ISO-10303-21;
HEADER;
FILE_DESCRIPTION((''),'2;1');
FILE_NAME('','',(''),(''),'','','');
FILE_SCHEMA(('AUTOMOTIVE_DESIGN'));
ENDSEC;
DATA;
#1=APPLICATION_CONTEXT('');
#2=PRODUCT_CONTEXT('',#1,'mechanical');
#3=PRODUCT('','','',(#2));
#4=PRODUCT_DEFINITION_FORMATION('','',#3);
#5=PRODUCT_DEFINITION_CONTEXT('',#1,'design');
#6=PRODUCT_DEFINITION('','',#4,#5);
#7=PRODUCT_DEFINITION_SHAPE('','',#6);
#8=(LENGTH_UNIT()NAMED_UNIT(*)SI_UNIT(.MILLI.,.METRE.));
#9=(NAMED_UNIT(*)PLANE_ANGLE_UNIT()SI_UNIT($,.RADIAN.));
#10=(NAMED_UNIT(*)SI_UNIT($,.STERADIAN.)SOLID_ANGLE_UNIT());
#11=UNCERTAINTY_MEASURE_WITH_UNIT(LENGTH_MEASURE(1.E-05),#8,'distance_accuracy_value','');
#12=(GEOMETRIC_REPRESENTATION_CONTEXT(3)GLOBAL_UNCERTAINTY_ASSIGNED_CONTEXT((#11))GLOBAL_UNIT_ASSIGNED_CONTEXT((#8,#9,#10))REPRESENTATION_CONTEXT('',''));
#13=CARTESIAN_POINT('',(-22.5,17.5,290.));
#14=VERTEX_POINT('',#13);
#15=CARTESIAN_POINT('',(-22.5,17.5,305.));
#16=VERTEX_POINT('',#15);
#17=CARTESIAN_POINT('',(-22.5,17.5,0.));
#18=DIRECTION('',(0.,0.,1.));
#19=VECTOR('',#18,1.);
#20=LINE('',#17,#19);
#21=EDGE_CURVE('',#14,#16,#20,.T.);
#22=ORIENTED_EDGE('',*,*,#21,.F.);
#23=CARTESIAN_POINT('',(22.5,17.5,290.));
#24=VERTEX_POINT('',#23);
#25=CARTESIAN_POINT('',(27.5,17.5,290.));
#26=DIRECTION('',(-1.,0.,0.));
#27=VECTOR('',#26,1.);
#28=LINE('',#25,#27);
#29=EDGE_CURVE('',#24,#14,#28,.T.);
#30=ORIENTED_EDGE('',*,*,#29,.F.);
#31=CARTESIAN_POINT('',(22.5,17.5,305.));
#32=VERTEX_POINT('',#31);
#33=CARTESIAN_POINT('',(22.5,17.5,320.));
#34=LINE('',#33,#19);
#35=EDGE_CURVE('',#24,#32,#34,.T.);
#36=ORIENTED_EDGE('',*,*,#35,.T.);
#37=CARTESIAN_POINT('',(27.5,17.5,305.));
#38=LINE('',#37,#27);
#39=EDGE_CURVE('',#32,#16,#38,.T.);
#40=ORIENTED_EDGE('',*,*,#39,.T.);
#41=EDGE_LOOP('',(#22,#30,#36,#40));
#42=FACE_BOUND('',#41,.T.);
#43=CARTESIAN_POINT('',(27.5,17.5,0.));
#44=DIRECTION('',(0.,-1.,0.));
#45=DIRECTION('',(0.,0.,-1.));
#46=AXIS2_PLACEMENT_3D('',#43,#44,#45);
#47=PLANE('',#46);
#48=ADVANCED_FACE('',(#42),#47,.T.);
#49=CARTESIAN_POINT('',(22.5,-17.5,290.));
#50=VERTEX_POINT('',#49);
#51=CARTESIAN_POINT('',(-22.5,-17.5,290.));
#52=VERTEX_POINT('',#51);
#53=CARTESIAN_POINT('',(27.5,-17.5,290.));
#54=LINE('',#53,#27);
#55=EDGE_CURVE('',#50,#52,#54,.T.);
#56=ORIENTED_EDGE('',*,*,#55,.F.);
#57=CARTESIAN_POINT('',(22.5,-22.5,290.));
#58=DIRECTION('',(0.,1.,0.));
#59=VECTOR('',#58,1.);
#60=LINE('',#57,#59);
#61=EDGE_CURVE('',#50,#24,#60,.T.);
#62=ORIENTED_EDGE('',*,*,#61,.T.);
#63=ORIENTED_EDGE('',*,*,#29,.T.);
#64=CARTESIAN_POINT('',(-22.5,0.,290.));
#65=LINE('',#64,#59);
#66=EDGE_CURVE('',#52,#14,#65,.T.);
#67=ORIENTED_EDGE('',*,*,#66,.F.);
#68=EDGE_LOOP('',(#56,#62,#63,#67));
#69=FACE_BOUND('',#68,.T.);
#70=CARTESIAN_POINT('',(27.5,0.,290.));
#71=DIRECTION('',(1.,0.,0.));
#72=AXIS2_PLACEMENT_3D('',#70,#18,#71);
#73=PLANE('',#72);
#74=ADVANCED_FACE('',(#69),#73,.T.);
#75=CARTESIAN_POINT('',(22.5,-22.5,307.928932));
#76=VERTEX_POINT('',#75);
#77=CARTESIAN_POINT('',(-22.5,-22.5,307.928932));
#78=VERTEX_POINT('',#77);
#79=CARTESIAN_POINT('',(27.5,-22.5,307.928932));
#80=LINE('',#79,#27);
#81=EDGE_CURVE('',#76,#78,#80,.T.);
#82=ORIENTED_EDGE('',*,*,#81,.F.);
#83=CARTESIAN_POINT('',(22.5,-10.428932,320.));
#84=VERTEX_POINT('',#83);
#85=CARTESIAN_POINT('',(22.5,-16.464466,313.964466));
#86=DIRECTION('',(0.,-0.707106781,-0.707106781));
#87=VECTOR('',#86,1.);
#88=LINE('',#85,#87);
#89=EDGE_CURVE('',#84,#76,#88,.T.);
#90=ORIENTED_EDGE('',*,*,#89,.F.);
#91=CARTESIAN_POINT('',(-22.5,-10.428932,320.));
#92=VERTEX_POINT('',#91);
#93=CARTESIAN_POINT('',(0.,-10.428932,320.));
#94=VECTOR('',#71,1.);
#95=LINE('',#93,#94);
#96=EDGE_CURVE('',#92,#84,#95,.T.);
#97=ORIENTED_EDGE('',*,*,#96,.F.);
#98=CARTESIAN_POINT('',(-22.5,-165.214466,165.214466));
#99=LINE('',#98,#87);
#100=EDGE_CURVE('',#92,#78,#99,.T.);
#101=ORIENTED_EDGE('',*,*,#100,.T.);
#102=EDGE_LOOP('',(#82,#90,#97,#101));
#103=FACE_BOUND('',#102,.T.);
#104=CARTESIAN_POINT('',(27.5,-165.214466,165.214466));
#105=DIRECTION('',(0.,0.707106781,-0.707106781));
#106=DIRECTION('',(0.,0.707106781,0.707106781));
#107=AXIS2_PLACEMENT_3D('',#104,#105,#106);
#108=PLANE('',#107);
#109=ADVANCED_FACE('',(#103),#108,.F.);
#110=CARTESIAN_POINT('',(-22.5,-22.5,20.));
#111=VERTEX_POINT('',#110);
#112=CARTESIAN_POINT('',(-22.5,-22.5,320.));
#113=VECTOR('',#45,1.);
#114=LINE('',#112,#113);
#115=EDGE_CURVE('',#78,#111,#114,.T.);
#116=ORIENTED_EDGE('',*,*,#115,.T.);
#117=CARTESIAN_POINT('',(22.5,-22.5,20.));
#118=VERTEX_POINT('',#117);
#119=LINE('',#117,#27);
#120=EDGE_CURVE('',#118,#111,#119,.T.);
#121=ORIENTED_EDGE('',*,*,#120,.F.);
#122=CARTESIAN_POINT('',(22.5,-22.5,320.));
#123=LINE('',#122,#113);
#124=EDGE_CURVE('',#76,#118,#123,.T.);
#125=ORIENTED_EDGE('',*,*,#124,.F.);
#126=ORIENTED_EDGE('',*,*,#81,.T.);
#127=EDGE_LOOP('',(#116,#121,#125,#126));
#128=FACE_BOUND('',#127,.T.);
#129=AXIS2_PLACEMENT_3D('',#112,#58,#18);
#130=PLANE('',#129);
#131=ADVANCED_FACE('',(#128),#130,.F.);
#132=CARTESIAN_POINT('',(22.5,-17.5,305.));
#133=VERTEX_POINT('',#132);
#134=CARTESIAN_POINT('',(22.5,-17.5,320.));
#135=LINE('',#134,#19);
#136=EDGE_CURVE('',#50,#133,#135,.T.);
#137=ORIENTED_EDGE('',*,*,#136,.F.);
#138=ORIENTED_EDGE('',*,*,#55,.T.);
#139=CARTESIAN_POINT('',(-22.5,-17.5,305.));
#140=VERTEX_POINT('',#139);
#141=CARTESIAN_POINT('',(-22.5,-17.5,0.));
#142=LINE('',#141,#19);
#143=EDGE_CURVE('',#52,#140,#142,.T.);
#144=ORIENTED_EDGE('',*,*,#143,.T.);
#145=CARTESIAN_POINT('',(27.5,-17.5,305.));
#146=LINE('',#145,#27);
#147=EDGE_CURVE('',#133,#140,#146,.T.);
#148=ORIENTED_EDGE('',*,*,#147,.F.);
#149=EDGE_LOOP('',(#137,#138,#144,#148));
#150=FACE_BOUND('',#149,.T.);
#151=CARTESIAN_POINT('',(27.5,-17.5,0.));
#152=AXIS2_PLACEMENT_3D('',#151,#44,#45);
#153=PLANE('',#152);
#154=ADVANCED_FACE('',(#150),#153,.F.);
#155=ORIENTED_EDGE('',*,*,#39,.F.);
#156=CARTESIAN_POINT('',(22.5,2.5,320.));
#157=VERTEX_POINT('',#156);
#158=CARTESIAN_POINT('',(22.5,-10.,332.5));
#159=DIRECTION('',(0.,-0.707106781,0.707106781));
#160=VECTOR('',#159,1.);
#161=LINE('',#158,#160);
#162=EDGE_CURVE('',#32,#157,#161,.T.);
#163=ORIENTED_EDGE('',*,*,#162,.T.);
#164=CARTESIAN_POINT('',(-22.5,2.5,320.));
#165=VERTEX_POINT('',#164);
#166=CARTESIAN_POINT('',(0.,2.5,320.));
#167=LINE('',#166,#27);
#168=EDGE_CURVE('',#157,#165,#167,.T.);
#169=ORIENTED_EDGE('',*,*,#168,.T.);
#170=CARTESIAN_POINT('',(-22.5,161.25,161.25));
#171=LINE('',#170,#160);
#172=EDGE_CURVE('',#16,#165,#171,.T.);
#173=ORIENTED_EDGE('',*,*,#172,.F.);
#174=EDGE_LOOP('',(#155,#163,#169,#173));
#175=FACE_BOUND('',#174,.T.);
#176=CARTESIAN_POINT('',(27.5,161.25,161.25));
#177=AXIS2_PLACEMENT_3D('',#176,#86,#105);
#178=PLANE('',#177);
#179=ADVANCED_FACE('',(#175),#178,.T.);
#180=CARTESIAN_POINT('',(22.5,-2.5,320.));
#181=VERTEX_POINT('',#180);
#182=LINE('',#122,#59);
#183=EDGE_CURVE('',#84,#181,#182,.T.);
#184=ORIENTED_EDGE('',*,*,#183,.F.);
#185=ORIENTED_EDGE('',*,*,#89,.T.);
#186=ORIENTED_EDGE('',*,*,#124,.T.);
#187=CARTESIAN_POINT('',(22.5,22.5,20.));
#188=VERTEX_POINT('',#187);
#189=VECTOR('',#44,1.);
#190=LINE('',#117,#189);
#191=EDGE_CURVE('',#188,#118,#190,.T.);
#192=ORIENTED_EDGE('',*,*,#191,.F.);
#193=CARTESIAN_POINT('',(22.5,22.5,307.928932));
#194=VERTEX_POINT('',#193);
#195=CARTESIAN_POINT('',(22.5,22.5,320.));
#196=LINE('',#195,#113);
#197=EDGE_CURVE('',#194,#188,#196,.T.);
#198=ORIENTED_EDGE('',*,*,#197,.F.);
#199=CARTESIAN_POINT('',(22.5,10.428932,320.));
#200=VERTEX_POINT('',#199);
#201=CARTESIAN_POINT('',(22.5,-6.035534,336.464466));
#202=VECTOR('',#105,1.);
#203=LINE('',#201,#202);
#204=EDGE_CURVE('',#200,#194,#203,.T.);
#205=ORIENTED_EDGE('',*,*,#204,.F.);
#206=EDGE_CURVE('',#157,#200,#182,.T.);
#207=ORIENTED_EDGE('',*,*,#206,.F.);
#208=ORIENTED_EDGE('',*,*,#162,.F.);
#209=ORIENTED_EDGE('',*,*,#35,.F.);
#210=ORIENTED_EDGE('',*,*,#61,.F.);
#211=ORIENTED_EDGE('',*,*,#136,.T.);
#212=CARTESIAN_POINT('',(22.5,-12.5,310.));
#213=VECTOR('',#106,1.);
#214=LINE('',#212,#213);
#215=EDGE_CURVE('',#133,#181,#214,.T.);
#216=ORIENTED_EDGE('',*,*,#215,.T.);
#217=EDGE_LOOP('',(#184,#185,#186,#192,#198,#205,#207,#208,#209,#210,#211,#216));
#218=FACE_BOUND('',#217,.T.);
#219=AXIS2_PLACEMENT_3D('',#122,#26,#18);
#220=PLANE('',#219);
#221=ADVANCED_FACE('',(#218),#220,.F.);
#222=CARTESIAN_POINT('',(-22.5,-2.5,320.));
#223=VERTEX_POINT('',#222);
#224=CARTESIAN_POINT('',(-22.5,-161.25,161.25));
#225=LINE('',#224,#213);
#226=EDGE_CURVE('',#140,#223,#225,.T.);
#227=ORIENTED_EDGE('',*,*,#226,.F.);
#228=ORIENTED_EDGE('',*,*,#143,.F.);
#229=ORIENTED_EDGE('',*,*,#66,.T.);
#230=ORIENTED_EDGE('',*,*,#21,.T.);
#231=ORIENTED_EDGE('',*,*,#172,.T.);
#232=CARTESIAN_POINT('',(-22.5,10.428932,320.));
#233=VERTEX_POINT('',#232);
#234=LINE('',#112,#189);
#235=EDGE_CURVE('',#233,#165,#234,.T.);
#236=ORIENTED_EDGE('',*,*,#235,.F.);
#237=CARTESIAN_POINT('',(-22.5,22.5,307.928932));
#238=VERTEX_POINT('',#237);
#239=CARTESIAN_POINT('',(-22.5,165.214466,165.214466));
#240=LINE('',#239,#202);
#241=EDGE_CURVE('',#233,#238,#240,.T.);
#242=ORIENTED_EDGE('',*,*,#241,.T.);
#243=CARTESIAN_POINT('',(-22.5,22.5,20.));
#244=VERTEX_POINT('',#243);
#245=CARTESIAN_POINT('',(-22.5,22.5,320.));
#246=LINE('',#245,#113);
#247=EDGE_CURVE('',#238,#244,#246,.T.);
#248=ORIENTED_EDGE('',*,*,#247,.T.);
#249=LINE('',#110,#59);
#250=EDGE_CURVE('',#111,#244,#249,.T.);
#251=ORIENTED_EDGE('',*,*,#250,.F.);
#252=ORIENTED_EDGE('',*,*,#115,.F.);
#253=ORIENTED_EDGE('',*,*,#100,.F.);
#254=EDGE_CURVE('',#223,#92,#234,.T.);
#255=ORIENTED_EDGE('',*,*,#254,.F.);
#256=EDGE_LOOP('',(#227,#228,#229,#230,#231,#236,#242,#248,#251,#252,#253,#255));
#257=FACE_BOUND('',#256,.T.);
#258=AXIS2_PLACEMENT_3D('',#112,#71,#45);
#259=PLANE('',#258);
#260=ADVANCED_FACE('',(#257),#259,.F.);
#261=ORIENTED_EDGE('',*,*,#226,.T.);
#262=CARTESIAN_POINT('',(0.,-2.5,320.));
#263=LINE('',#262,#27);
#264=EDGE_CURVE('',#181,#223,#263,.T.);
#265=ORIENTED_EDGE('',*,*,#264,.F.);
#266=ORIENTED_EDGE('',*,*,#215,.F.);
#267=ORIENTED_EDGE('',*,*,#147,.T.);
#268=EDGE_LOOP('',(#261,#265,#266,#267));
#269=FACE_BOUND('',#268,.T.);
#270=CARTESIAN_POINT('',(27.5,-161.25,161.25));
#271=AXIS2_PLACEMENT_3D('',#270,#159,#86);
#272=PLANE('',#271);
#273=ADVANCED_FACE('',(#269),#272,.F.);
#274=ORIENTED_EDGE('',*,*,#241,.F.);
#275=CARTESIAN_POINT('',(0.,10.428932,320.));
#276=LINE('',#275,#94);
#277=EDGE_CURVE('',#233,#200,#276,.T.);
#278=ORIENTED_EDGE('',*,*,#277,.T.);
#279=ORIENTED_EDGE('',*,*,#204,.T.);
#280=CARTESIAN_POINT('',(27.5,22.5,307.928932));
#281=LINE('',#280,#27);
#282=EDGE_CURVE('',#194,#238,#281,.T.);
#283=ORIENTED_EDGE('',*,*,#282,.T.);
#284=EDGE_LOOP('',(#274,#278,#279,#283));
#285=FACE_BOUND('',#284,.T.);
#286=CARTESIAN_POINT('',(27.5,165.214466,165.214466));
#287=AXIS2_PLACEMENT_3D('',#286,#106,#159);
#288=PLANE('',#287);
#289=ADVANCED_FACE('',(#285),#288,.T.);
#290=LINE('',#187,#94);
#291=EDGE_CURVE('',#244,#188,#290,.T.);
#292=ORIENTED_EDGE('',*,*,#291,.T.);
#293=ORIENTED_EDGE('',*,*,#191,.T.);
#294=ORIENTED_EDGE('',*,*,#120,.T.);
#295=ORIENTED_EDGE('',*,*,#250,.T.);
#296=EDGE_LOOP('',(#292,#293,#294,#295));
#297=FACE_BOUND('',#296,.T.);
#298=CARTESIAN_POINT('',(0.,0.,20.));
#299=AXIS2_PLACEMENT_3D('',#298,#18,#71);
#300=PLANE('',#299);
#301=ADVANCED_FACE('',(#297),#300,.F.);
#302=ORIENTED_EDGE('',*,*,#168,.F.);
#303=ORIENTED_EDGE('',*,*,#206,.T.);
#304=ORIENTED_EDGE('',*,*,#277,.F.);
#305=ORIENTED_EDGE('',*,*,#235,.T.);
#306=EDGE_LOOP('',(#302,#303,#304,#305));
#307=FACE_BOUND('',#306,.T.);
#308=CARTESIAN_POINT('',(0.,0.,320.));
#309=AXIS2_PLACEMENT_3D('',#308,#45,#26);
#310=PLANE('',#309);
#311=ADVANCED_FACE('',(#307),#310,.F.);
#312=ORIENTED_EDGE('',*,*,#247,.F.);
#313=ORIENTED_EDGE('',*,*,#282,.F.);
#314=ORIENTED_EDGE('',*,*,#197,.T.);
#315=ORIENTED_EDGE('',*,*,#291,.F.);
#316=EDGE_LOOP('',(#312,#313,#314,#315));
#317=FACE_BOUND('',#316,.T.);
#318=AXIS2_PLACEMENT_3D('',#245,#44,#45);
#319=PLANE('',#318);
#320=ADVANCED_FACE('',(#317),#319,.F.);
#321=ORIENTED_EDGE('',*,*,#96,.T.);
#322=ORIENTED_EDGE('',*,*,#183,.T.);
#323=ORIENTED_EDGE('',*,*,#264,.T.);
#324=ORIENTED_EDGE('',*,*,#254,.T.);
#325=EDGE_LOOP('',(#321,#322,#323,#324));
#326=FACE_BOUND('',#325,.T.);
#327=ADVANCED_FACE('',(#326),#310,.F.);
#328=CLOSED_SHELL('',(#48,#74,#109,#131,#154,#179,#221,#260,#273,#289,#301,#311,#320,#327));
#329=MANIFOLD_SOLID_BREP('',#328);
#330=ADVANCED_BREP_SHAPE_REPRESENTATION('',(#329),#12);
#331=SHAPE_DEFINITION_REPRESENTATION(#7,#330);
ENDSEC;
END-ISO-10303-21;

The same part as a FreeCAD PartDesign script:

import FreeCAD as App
import Part
import Sketcher

V = App.Vector
Q = App.Units.Quantity


def add_polygon(sketch, points):
    """Adds a closed chain of lines whose ends are joined by coincident constraints."""
    first, n = sketch.GeometryCount, len(points)
    for a, b in zip(points, points[1:] + points[:1]):
        sketch.addGeometry(Part.LineSegment(App.Vector(*a, 0), App.Vector(*b, 0)), False)
    for i in range(n):
        sketch.addConstraint(Sketcher.Constraint("Coincident", first + i, 2, first + (i + 1) % n, 1))

doc = App.newDocument("Part")
body = doc.addObject("PartDesign::Body", "Body")

sketch1 = body.newObject("Sketcher::SketchObject", "Sketch")
sketch1.AttachmentSupport = (doc.getObject("XY_Plane"), [""])
sketch1.MapMode = "FlatFace"
add_polygon(sketch1, [(-22, 22), (-22, -22), (22, -22), (22, 22)])
sketch1.addConstraint(Sketcher.Constraint("Vertical", 0))
sketch1.addConstraint(Sketcher.Constraint("Horizontal", 1))
sketch1.addConstraint(Sketcher.Constraint("Vertical", 2))
sketch1.addConstraint(Sketcher.Constraint("Horizontal", 3))
sketch1.addConstraint(Sketcher.Constraint("Symmetric", 0, 2, 2, 2, -1, 1))
sketch1.addConstraint(Sketcher.Constraint("Equal", 3, 0))
sketch1.addConstraint(Sketcher.Constraint("DistanceX", 1, 1, 1, 2, Q("45 mm")))
pad1 = body.newObject("PartDesign::Pad", "Pad")
pad1.Profile = sketch1
pad1.Length = 320

sketch2 = body.newObject("Sketcher::SketchObject", "Sketch001")
sketch2.AttachmentSupport = (doc.getObject("YZ_Plane"), [""])
sketch2.MapMode = "FlatFace"
sketch2.AttachmentOffset = App.Placement(V(0, 0, -22.5), App.Rotation())
add_polygon(sketch2, [(18, 290), (-18, 290), (-18, 305), (-2, 320), (2, 320), (18, 305)])
add_polygon(sketch2, [(22, 320), (22, 308), (10, 320)])
add_polygon(sketch2, [(-10, 320), (-22, 308), (-22, 320)])
sketch2.addConstraint(Sketcher.Constraint("Horizontal", 0))
sketch2.addConstraint(Sketcher.Constraint("Vertical", 1))
sketch2.addConstraint(Sketcher.Constraint("Horizontal", 3))
sketch2.addConstraint(Sketcher.Constraint("Vertical", 5))
sketch2.addConstraint(Sketcher.Constraint("Vertical", 6))
sketch2.addConstraint(Sketcher.Constraint("Horizontal", 8))
sketch2.addConstraint(Sketcher.Constraint("Vertical", 10))
sketch2.addConstraint(Sketcher.Constraint("Horizontal", 11))
sketch2.addConstraint(Sketcher.Constraint("Symmetric", 1, 2, 4, 2, -2))
sketch2.addConstraint(Sketcher.Constraint("Symmetric", 6, 2, 9, 2, -2))
sketch2.addConstraint(Sketcher.Constraint("Symmetric", 7, 2, 11, 2, -2))
sketch2.addConstraint(Sketcher.Constraint("Perpendicular", 2, 4))
sketch2.addConstraint(Sketcher.Constraint("Parallel", 4, 7))
sketch2.addConstraint(Sketcher.Constraint("Perpendicular", 7, 9))
sketch2.addConstraint(Sketcher.Constraint("Horizontal", 3, 2, 7, 2))
sketch2.addConstraint(Sketcher.Constraint("DistanceX", 0, 2, 0, 1, Q("35 mm")))
sketch2.addConstraint(Sketcher.Constraint("DistanceX", 3, 1, 3, 2, Q("5 mm")))
sketch2.addConstraint(Sketcher.Constraint("DistanceY", 1, 1, 1, 2, Q("15 mm")))
sketch2.addConstraint(Sketcher.Constraint("DistanceY", -1, 1, 0, 2, Q("290 mm")))
sketch2.addConstraint(Sketcher.Constraint("DistanceX", 4, 2, 6, 2, Q("5 mm")))
sketch2.addConstraint(Sketcher.Constraint("DistanceX", 8, 1, 8, 2, Q("12.071068 mm")))
pocket1 = body.newObject("PartDesign::Pocket", "Pocket")
pocket1.Profile = sketch2
pocket1.Length = 50
pocket1.Reversed = True

sketch3 = body.newObject("Sketcher::SketchObject", "Sketch002")
sketch3.AttachmentSupport = (doc.getObject("XY_Plane"), [""])
sketch3.MapMode = "FlatFace"
add_polygon(sketch3, [(22, 22), (22, -22), (-22, -22), (-22, 22)])
sketch3.addConstraint(Sketcher.Constraint("Vertical", 0))
sketch3.addConstraint(Sketcher.Constraint("Horizontal", 1))
sketch3.addConstraint(Sketcher.Constraint("Vertical", 2))
sketch3.addConstraint(Sketcher.Constraint("Horizontal", 3))
sketch3.addConstraint(Sketcher.Constraint("Symmetric", 0, 2, 2, 2, -1, 1))
sketch3.addConstraint(Sketcher.Constraint("Equal", 3, 0))
sketch3.addConstraint(Sketcher.Constraint("DistanceX", 1, 2, 1, 1, Q("45 mm")))
pocket2 = body.newObject("PartDesign::Pocket", "Pocket001")
pocket2.Profile = sketch3
pocket2.Length = 20
pocket2.Reversed = True

doc.recompute()
